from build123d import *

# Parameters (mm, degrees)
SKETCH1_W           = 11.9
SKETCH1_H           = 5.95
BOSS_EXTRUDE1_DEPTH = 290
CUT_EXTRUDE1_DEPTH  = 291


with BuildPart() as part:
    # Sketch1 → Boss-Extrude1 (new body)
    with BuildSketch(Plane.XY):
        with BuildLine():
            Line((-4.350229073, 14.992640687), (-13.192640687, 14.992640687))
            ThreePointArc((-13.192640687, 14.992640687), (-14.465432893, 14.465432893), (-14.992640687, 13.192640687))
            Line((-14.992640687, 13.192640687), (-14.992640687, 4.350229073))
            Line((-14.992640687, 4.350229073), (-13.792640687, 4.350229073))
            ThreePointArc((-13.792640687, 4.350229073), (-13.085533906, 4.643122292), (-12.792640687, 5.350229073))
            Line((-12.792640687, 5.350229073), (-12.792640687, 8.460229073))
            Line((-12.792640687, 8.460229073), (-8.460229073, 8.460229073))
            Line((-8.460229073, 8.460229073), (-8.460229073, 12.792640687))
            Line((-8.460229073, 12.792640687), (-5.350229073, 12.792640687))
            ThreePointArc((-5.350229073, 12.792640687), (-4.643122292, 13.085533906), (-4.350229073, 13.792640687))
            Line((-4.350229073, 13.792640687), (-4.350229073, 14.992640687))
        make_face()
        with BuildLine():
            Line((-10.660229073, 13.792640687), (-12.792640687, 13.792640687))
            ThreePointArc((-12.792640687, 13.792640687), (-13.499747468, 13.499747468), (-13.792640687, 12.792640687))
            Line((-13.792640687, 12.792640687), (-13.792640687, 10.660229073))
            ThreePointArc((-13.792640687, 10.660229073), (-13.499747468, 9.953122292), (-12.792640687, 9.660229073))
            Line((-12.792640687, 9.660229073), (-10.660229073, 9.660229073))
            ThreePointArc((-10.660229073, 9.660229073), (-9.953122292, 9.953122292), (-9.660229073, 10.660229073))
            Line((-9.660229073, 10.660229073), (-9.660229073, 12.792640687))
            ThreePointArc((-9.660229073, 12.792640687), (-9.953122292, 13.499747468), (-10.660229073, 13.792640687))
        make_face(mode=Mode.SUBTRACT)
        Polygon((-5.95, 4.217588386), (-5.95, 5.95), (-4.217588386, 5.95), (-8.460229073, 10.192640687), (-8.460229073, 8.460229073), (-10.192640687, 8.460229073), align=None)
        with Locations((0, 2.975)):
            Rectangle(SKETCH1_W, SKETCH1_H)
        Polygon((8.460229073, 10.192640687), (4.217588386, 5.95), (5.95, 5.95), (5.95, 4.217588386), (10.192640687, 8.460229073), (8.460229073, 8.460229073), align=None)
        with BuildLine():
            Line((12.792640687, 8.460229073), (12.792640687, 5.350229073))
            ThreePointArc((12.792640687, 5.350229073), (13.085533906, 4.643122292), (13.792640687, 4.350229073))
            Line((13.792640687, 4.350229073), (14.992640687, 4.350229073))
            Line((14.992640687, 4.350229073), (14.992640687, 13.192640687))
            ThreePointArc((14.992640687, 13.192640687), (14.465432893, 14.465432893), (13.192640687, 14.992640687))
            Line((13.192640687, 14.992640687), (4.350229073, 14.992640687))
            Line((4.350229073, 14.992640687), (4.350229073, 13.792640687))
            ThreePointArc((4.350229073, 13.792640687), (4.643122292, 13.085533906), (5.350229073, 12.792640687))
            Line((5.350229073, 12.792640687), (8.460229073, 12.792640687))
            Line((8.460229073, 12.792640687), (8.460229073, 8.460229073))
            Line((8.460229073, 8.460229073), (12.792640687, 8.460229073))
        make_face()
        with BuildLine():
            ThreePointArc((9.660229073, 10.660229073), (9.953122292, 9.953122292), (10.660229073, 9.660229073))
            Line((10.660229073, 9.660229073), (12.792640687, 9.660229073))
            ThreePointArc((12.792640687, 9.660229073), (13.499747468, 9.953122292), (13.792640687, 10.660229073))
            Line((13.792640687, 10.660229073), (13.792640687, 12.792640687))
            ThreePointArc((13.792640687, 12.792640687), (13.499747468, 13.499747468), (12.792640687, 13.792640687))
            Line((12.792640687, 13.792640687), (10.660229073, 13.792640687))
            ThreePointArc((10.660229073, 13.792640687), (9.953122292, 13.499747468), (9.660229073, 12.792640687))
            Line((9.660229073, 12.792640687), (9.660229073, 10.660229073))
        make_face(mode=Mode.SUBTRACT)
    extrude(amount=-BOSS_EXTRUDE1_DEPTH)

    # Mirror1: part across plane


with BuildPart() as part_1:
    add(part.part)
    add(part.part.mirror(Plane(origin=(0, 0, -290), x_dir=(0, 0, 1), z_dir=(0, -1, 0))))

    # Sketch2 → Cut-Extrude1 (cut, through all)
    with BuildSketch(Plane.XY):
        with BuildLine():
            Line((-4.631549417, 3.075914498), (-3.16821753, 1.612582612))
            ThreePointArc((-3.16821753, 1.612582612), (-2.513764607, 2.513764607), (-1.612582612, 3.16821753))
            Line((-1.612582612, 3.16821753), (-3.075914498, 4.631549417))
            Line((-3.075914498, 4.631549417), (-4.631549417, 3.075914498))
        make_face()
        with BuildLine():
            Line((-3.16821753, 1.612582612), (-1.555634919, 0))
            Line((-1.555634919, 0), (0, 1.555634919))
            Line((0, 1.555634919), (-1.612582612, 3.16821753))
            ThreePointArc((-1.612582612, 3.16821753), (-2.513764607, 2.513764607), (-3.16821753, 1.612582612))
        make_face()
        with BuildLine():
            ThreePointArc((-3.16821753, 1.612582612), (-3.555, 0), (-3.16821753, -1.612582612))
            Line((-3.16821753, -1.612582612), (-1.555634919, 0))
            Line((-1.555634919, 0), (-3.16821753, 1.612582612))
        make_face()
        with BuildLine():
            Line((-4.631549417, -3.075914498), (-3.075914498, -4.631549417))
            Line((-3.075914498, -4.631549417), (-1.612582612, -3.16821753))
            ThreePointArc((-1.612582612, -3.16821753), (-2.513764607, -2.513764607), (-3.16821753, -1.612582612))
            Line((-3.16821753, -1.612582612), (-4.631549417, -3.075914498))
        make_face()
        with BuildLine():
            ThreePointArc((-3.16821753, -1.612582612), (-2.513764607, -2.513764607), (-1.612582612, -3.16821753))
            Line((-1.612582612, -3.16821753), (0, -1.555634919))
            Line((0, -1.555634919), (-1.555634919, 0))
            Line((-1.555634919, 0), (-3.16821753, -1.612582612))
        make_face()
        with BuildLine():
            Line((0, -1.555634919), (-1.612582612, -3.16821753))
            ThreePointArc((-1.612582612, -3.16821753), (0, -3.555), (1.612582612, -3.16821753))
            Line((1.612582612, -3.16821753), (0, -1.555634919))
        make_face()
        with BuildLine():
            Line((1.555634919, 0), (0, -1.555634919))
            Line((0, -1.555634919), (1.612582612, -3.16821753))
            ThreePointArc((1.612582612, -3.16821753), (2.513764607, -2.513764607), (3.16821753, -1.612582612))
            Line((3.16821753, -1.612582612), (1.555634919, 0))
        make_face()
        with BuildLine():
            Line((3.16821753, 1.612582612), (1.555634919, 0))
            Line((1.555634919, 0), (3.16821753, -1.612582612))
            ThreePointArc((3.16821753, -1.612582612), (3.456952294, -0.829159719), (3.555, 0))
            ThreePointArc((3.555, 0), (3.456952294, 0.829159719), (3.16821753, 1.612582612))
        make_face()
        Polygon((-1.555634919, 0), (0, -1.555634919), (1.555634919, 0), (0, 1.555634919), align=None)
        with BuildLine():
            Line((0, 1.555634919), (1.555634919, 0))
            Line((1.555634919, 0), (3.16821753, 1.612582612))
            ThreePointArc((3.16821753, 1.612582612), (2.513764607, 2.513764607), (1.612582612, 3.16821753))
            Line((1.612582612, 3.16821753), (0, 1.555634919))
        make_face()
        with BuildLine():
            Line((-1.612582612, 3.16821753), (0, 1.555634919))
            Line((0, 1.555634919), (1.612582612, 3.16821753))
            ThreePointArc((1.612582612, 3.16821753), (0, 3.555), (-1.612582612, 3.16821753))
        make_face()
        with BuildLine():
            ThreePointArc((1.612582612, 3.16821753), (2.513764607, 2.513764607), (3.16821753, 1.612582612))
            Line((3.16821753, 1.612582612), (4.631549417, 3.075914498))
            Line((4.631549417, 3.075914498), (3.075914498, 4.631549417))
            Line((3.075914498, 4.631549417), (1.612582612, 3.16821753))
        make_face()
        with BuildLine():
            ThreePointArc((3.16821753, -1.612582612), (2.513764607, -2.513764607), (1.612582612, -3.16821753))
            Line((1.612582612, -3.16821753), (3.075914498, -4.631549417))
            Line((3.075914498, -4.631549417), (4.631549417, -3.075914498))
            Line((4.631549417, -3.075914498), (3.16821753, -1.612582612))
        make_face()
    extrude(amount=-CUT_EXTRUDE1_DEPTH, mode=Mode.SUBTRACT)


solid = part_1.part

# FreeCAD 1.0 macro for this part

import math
import FreeCAD as App
import Part
import Sketcher
from FreeCAD import Vector
Q = App.Units.Quantity

doc = App.newDocument("Part")
body = doc.addObject("PartDesign::Body", "Body")

sketch1 = doc.addObject("Sketcher::SketchObject", "Sketch")
body.addObject(sketch1)
sketch1.AttachmentSupport = (doc.XY_Plane, [""])
sketch1.MapMode = "FlatFace"
sketch1.addGeometry(Part.LineSegment(Vector(-4.350229, 14.992641, 0), Vector(-13.192641, 14.992641, 0)), False)
sketch1.addGeometry(Part.ArcOfCircle(Part.Circle(Vector(-13.192641, 13.192641, 0), Vector(0, 0, 1), 1.8), math.radians(90), math.radians(180)), False)
sketch1.addGeometry(Part.LineSegment(Vector(-14.992641, 13.192641, 0), Vector(-14.992641, 4.350229, 0)), False)
sketch1.addGeometry(Part.LineSegment(Vector(-14.992641, 4.350229, 0), Vector(-13.792641, 4.350229, 0)), False)
sketch1.addGeometry(Part.ArcOfCircle(Part.Circle(Vector(-13.792641, 5.350229, 0), Vector(0, 0, 1), 1), math.radians(-90), math.radians(0)), False)
sketch1.addGeometry(Part.LineSegment(Vector(-12.792641, 5.350229, 0), Vector(-12.792641, 8.460229, 0)), False)
sketch1.addGeometry(Part.LineSegment(Vector(-12.792641, 8.460229, 0), Vector(-10.192641, 8.460229, 0)), False)
sketch1.addGeometry(Part.LineSegment(Vector(-10.192641, 8.460229, 0), Vector(-5.95, 4.217588, 0)), False)
sketch1.addGeometry(Part.LineSegment(Vector(-5.95, 4.217588, 0), Vector(-5.95, 0, 0)), False)
sketch1.addGeometry(Part.LineSegment(Vector(-5.95, 0, 0), Vector(5.95, 0, 0)), False)
sketch1.addGeometry(Part.LineSegment(Vector(5.95, 0, 0), Vector(5.95, 4.217588, 0)), False)
sketch1.addGeometry(Part.LineSegment(Vector(5.95, 4.217588, 0), Vector(10.192641, 8.460229, 0)), False)
sketch1.addGeometry(Part.LineSegment(Vector(10.192641, 8.460229, 0), Vector(12.792641, 8.460229, 0)), False)
sketch1.addGeometry(Part.LineSegment(Vector(12.792641, 8.460229, 0), Vector(12.792641, 5.350229, 0)), False)
sketch1.addGeometry(Part.ArcOfCircle(Part.Circle(Vector(13.792641, 5.350229, 0), Vector(0, 0, 1), 1), math.radians(-180), math.radians(-90)), False)
sketch1.addGeometry(Part.LineSegment(Vector(13.792641, 4.350229, 0), Vector(14.992641, 4.350229, 0)), False)
sketch1.addGeometry(Part.LineSegment(Vector(14.992641, 4.350229, 0), Vector(14.992641, 13.192641, 0)), False)
sketch1.addGeometry(Part.ArcOfCircle(Part.Circle(Vector(13.192641, 13.192641, 0), Vector(0, 0, 1), 1.8), math.radians(0), math.radians(90)), False)
sketch1.addGeometry(Part.LineSegment(Vector(13.192641, 14.992641, 0), Vector(4.350229, 14.992641, 0)), False)
sketch1.addGeometry(Part.LineSegment(Vector(4.350229, 14.992641, 0), Vector(4.350229, 13.792641, 0)), False)
sketch1.addGeometry(Part.ArcOfCircle(Part.Circle(Vector(5.350229, 13.792641, 0), Vector(0, 0, 1), 1), math.radians(-180), math.radians(-90)), False)
sketch1.addGeometry(Part.LineSegment(Vector(5.350229, 12.792641, 0), Vector(8.460229, 12.792641, 0)), False)
sketch1.addGeometry(Part.LineSegment(Vector(8.460229, 12.792641, 0), Vector(8.460229, 10.192641, 0)), False)
sketch1.addGeometry(Part.LineSegment(Vector(8.460229, 10.192641, 0), Vector(4.217588, 5.95, 0)), False)
sketch1.addGeometry(Part.LineSegment(Vector(4.217588, 5.95, 0), Vector(-4.217588, 5.95, 0)), False)
sketch1.addGeometry(Part.LineSegment(Vector(-4.217588, 5.95, 0), Vector(-8.460229, 10.192641, 0)), False)
sketch1.addGeometry(Part.LineSegment(Vector(-8.460229, 10.192641, 0), Vector(-8.460229, 12.792641, 0)), False)
sketch1.addGeometry(Part.LineSegment(Vector(-8.460229, 12.792641, 0), Vector(-5.350229, 12.792641, 0)), False)
sketch1.addGeometry(Part.ArcOfCircle(Part.Circle(Vector(-5.350229, 13.792641, 0), Vector(0, 0, 1), 1), math.radians(-90), math.radians(0)), False)
sketch1.addGeometry(Part.LineSegment(Vector(-4.350229, 13.792641, 0), Vector(-4.350229, 14.992641, 0)), False)
sketch1.addGeometry(Part.LineSegment(Vector(-12.792641, 13.792641, 0), Vector(-10.660229, 13.792641, 0)), False)
sketch1.addGeometry(Part.ArcOfCircle(Part.Circle(Vector(-10.660229, 12.792641, 0), Vector(0, 0, 1), 1), math.radians(0), math.radians(90)), False)
sketch1.addGeometry(Part.LineSegment(Vector(-9.660229, 12.792641, 0), Vector(-9.660229, 10.660229, 0)), False)
sketch1.addGeometry(Part.ArcOfCircle(Part.Circle(Vector(-10.660229, 10.660229, 0), Vector(0, 0, 1), 1), math.radians(-90), math.radians(0)), False)
sketch1.addGeometry(Part.LineSegment(Vector(-10.660229, 9.660229, 0), Vector(-12.792641, 9.660229, 0)), False)
sketch1.addGeometry(Part.ArcOfCircle(Part.Circle(Vector(-12.792641, 10.660229, 0), Vector(0, 0, 1), 1), math.radians(-180), math.radians(-90)), False)
sketch1.addGeometry(Part.LineSegment(Vector(-13.792641, 10.660229, 0), Vector(-13.792641, 12.792641, 0)), False)
sketch1.addGeometry(Part.ArcOfCircle(Part.Circle(Vector(-12.792641, 12.792641, 0), Vector(0, 0, 1), 1), math.radians(90), math.radians(180)), False)
sketch1.addGeometry(Part.ArcOfCircle(Part.Circle(Vector(10.660229, 10.660229, 0), Vector(0, 0, 1), 1), math.radians(-180), math.radians(-90)), False)
sketch1.addGeometry(Part.LineSegment(Vector(9.660229, 10.660229, 0), Vector(9.660229, 12.792641, 0)), False)
sketch1.addGeometry(Part.ArcOfCircle(Part.Circle(Vector(10.660229, 12.792641, 0), Vector(0, 0, 1), 1), math.radians(90), math.radians(180)), False)
sketch1.addGeometry(Part.LineSegment(Vector(10.660229, 13.792641, 0), Vector(12.792641, 13.792641, 0)), False)
sketch1.addGeometry(Part.ArcOfCircle(Part.Circle(Vector(12.792641, 12.792641, 0), Vector(0, 0, 1), 1), math.radians(0), math.radians(90)), False)
sketch1.addGeometry(Part.LineSegment(Vector(13.792641, 12.792641, 0), Vector(13.792641, 10.660229, 0)), False)
sketch1.addGeometry(Part.ArcOfCircle(Part.Circle(Vector(12.792641, 10.660229, 0), Vector(0, 0, 1), 1), math.radians(-90), math.radians(0)), False)
sketch1.addGeometry(Part.LineSegment(Vector(12.792641, 9.660229, 0), Vector(10.660229, 9.660229, 0)), False)
sketch1.addConstraint(Sketcher.Constraint("Tangent", 0, 2, 1, 1))
sketch1.addConstraint(Sketcher.Constraint("Tangent", 1, 2, 2, 1))
sketch1.addConstraint(Sketcher.Constraint("Coincident", 2, 2, 3, 1))
sketch1.addConstraint(Sketcher.Constraint("Tangent", 3, 2, 4, 1))
sketch1.addConstraint(Sketcher.Constraint("Tangent", 4, 2, 5, 1))
sketch1.addConstraint(Sketcher.Constraint("Coincident", 5, 2, 6, 1))
sketch1.addConstraint(Sketcher.Constraint("Coincident", 6, 2, 7, 1))
sketch1.addConstraint(Sketcher.Constraint("Coincident", 7, 2, 8, 1))
sketch1.addConstraint(Sketcher.Constraint("Coincident", 8, 2, 9, 1))
sketch1.addConstraint(Sketcher.Constraint("Coincident", 9, 2, 10, 1))
sketch1.addConstraint(Sketcher.Constraint("Coincident", 10, 2, 11, 1))
sketch1.addConstraint(Sketcher.Constraint("Coincident", 11, 2, 12, 1))
sketch1.addConstraint(Sketcher.Constraint("Coincident", 12, 2, 13, 1))
sketch1.addConstraint(Sketcher.Constraint("Tangent", 13, 2, 14, 1))
sketch1.addConstraint(Sketcher.Constraint("Tangent", 14, 2, 15, 1))
sketch1.addConstraint(Sketcher.Constraint("Coincident", 15, 2, 16, 1))
sketch1.addConstraint(Sketcher.Constraint("Tangent", 16, 2, 17, 1))
sketch1.addConstraint(Sketcher.Constraint("Tangent", 17, 2, 18, 1))
sketch1.addConstraint(Sketcher.Constraint("Coincident", 18, 2, 19, 1))
sketch1.addConstraint(Sketcher.Constraint("Tangent", 19, 2, 20, 1))
sketch1.addConstraint(Sketcher.Constraint("Tangent", 20, 2, 21, 1))
sketch1.addConstraint(Sketcher.Constraint("Coincident", 21, 2, 22, 1))
sketch1.addConstraint(Sketcher.Constraint("Coincident", 22, 2, 23, 1))
sketch1.addConstraint(Sketcher.Constraint("Coincident", 23, 2, 24, 1))
sketch1.addConstraint(Sketcher.Constraint("Coincident", 24, 2, 25, 1))
sketch1.addConstraint(Sketcher.Constraint("Coincident", 25, 2, 26, 1))
sketch1.addConstraint(Sketcher.Constraint("Coincident", 26, 2, 27, 1))
sketch1.addConstraint(Sketcher.Constraint("Tangent", 27, 2, 28, 1))
sketch1.addConstraint(Sketcher.Constraint("Tangent", 28, 2, 29, 1))
sketch1.addConstraint(Sketcher.Constraint("Coincident", 29, 2, 0, 1))
sketch1.addConstraint(Sketcher.Constraint("Tangent", 30, 2, 31, 2))
sketch1.addConstraint(Sketcher.Constraint("Tangent", 31, 1, 32, 1))
sketch1.addConstraint(Sketcher.Constraint("Tangent", 32, 2, 33, 2))
sketch1.addConstraint(Sketcher.Constraint("Tangent", 33, 1, 34, 1))
sketch1.addConstraint(Sketcher.Constraint("Tangent", 34, 2, 35, 2))
sketch1.addConstraint(Sketcher.Constraint("Tangent", 35, 1, 36, 1))
sketch1.addConstraint(Sketcher.Constraint("Tangent", 36, 2, 37, 2))
sketch1.addConstraint(Sketcher.Constraint("Tangent", 37, 1, 30, 1))
sketch1.addConstraint(Sketcher.Constraint("Tangent", 38, 1, 39, 1))
sketch1.addConstraint(Sketcher.Constraint("Tangent", 39, 2, 40, 2))
sketch1.addConstraint(Sketcher.Constraint("Tangent", 40, 1, 41, 1))
sketch1.addConstraint(Sketcher.Constraint("Tangent", 41, 2, 42, 2))
sketch1.addConstraint(Sketcher.Constraint("Tangent", 42, 1, 43, 1))
sketch1.addConstraint(Sketcher.Constraint("Tangent", 43, 2, 44, 2))
sketch1.addConstraint(Sketcher.Constraint("Tangent", 44, 1, 45, 1))
sketch1.addConstraint(Sketcher.Constraint("Tangent", 45, 2, 38, 2))
sketch1.addConstraint(Sketcher.Constraint("Horizontal", 0))
sketch1.addConstraint(Sketcher.Constraint("Vertical", 2))
sketch1.addConstraint(Sketcher.Constraint("Horizontal", 3))
sketch1.addConstraint(Sketcher.Constraint("Vertical", 5))
sketch1.addConstraint(Sketcher.Constraint("Horizontal", 6))
sketch1.addConstraint(Sketcher.Constraint("Vertical", 8))
sketch1.addConstraint(Sketcher.Constraint("Horizontal", 9))
sketch1.addConstraint(Sketcher.Constraint("Vertical", 10))
sketch1.addConstraint(Sketcher.Constraint("Horizontal", 12))
sketch1.addConstraint(Sketcher.Constraint("Vertical", 13))
sketch1.addConstraint(Sketcher.Constraint("Horizontal", 15))
sketch1.addConstraint(Sketcher.Constraint("Vertical", 16))
sketch1.addConstraint(Sketcher.Constraint("Horizontal", 18))
sketch1.addConstraint(Sketcher.Constraint("Vertical", 19))
sketch1.addConstraint(Sketcher.Constraint("Horizontal", 21))
sketch1.addConstraint(Sketcher.Constraint("Vertical", 22))
sketch1.addConstraint(Sketcher.Constraint("Horizontal", 24))
sketch1.addConstraint(Sketcher.Constraint("Vertical", 26))
sketch1.addConstraint(Sketcher.Constraint("Horizontal", 27))
sketch1.addConstraint(Sketcher.Constraint("Vertical", 29))
sketch1.addConstraint(Sketcher.Constraint("Horizontal", 30))
sketch1.addConstraint(Sketcher.Constraint("Vertical", 32))
sketch1.addConstraint(Sketcher.Constraint("Horizontal", 34))
sketch1.addConstraint(Sketcher.Constraint("Vertical", 36))
sketch1.addConstraint(Sketcher.Constraint("Vertical", 39))
sketch1.addConstraint(Sketcher.Constraint("Horizontal", 41))
sketch1.addConstraint(Sketcher.Constraint("Vertical", 43))
sketch1.addConstraint(Sketcher.Constraint("Horizontal", 45))
sketch1.addConstraint(Sketcher.Constraint("Equal", 4, 14))
sketch1.addConstraint(Sketcher.Constraint("Equal", 1, 17))
sketch1.addConstraint(Sketcher.Constraint("Equal", 14, 20))
sketch1.addConstraint(Sketcher.Constraint("Equal", 20, 28))
sketch1.addConstraint(Sketcher.Constraint("Equal", 28, 31))
sketch1.addConstraint(Sketcher.Constraint("Equal", 31, 33))
sketch1.addConstraint(Sketcher.Constraint("Equal", 33, 35))
sketch1.addConstraint(Sketcher.Constraint("Equal", 35, 37))
sketch1.addConstraint(Sketcher.Constraint("Equal", 37, 38))
sketch1.addConstraint(Sketcher.Constraint("Equal", 38, 40))
sketch1.addConstraint(Sketcher.Constraint("Equal", 40, 42))
sketch1.addConstraint(Sketcher.Constraint("Equal", 42, 44))
sketch1.addConstraint(Sketcher.Constraint("Symmetric", 8, 2, 9, 2, -1, 1))
sketch1.addConstraint(Sketcher.Constraint("Symmetric", 4, 3, 14, 3, -2))
sketch1.addConstraint(Sketcher.Constraint("Symmetric", 1, 3, 17, 3, -2))
sketch1.addConstraint(Sketcher.Constraint("Symmetric", 20, 3, 28, 3, -2))
sketch1.addConstraint(Sketcher.Constraint("Symmetric", 33, 3, 38, 3, -2))
sketch1.addConstraint(Sketcher.Constraint("Symmetric", 37, 3, 42, 3, -2))
sketch1.addConstraint(Sketcher.Constraint("Symmetric", 6, 2, 11, 2, -2))
sketch1.addConstraint(Sketcher.Constraint("Symmetric", 22, 2, 25, 2, -2))
sketch1.addConstraint(Sketcher.Constraint("Perpendicular", 7, 11))
sketch1.addConstraint(Sketcher.Constraint("Parallel", 11, 23))
sketch1.addConstraint(Sketcher.Constraint("Perpendicular", 23, 25))
sketch1.addConstraint(Sketcher.Constraint("Horizontal", 7, 2, 10, 2))
sketch1.addConstraint(Sketcher.Constraint("Horizontal", 42, 3, 20, 2))
sketch1.addConstraint(Sketcher.Constraint("Vertical", 37, 3, 4, 2))
sketch1.addConstraint(Sketcher.Constraint("Equal", 18, 2))
sketch1.addConstraint(Sketcher.Constraint("Equal", 27, 5))
sketch1.addConstraint(Sketcher.Constraint("Equal", 15, 19))
sketch1.addConstraint(Sketcher.Constraint("Equal", 12, 22))
sketch1.addConstraint(Sketcher.Constraint("Equal", 45, 32))
sketch1.addConstraint(Sketcher.Constraint("Equal", 11, 23))
sketch1.addConstraint(Sketcher.Constraint("Radius", 4, Q("1 mm")))
sketch1.addConstraint(Sketcher.Constraint("Radius", 1, Q("1.8 mm")))
sketch1.addConstraint(Sketcher.Constraint("Distance", 7, Q("6 mm")))
sketch1.addConstraint(Sketcher.Constraint("DistanceX", 3, 1, 3, 2, Q("1.2 mm")))
sketch1.addConstraint(Sketcher.Constraint("DistanceX", 6, 1, 6, 2, Q("2.6 mm")))
sketch1.addConstraint(Sketcher.Constraint("DistanceX", 9, 1, 9, 2, Q("11.9 mm")))
sketch1.addConstraint(Sketcher.Constraint("DistanceX", 21, 1, 21, 2, Q("3.11 mm")))
sketch1.addConstraint(Sketcher.Constraint("DistanceY", 5, 2, 35, 3, Q("2.2 mm")))
sketch1.addConstraint(Sketcher.Constraint("DistanceY", -1, 1, 23, 2, Q("5.95 mm")))
sketch1.addConstraint(Sketcher.Constraint("DistanceX", 0, 2, 0, 1, Q("8.842412 mm")))
pad1 = doc.addObject("PartDesign::Pad", "Pad")
body.addObject(pad1)
pad1.Profile = sketch1
pad1.Length = 290
pad1.Reversed = True
body2 = doc.addObject("PartDesign::Body", "Body001")
doc.recompute()

body2.BaseFeature = body
doc.recompute()

mirroring = doc.addObject("Part::Mirroring", "Mirroring")
mirroring.Source = body
mirroring.Base = Vector(0, 0, -290)
mirroring.Normal = Vector(0, -1, 0)
body3 = doc.addObject("PartDesign::Body", "Body002")
body3.BaseFeature = mirroring
boolean = doc.addObject("PartDesign::Boolean", "Boolean")
body2.addObject(boolean)
boolean.Type = "Fuse"
boolean.addObjects([body3])
doc.recompute()

sketch2 = doc.addObject("Sketcher::SketchObject", "Sketch001")
body2.addObject(sketch2)
sketch2.AttachmentSupport = (doc.getObject("XY_Plane001"), [""])
sketch2.MapMode = "FlatFace"
sketch2.addGeometry(Part.LineSegment(Vector(-4.631549, 3.075914, 0), Vector(-3.168218, 1.612583, 0)), False)
sketch2.addGeometry(Part.ArcOfCircle(Part.Circle(Vector(0, 0, 0), Vector(0, 0, 1), 3.555), math.radians(153.024482), math.radians(206.975518)), False)
sketch2.addGeometry(Part.LineSegment(Vector(-3.168218, -1.612583, 0), Vector(-4.631549, -3.075914, 0)), False)
sketch2.addGeometry(Part.LineSegment(Vector(-4.631549, -3.075914, 0), Vector(-3.075914, -4.631549, 0)), False)
sketch2.addGeometry(Part.LineSegment(Vector(-3.075914, -4.631549, 0), Vector(-1.612583, -3.168218, 0)), False)
sketch2.addGeometry(Part.ArcOfCircle(Part.Circle(Vector(0, 0, 0), Vector(0, 0, 1), 3.555), math.radians(-116.975518), math.radians(-63.024482)), False)
sketch2.addGeometry(Part.LineSegment(Vector(1.612583, -3.168218, 0), Vector(3.075914, -4.631549, 0)), False)
sketch2.addGeometry(Part.LineSegment(Vector(3.075914, -4.631549, 0), Vector(4.631549, -3.075914, 0)), False)
sketch2.addGeometry(Part.LineSegment(Vector(4.631549, -3.075914, 0), Vector(3.168218, -1.612583, 0)), False)
sketch2.addGeometry(Part.ArcOfCircle(Part.Circle(Vector(0, 0, 0), Vector(0, 0, 1), 3.555), math.radians(-26.975518), math.radians(0)), False)
sketch2.addGeometry(Part.ArcOfCircle(Part.Circle(Vector(0, 0, 0), Vector(0, 0, 1), 3.555), math.radians(0), math.radians(26.975518)), False)
sketch2.addGeometry(Part.LineSegment(Vector(3.168218, 1.612583, 0), Vector(4.631549, 3.075914, 0)), False)
sketch2.addGeometry(Part.LineSegment(Vector(4.631549, 3.075914, 0), Vector(3.075914, 4.631549, 0)), False)
sketch2.addGeometry(Part.LineSegment(Vector(3.075914, 4.631549, 0), Vector(1.612583, 3.168218, 0)), False)
sketch2.addGeometry(Part.ArcOfCircle(Part.Circle(Vector(0, 0, 0), Vector(0, 0, 1), 3.555), math.radians(63.024482), math.radians(116.975518)), False)
sketch2.addGeometry(Part.LineSegment(Vector(-1.612583, 3.168218, 0), Vector(-3.075914, 4.631549, 0)), False)
sketch2.addGeometry(Part.LineSegment(Vector(-3.075914, 4.631549, 0), Vector(-4.631549, 3.075914, 0)), False)
sketch2.addConstraint(Sketcher.Constraint("Coincident", 0, 2, 1, 1))
sketch2.addConstraint(Sketcher.Constraint("Coincident", 1, 2, 2, 1))
sketch2.addConstraint(Sketcher.Constraint("Coincident", 2, 2, 3, 1))
sketch2.addConstraint(Sketcher.Constraint("Coincident", 3, 2, 4, 1))
sketch2.addConstraint(Sketcher.Constraint("Coincident", 4, 2, 5, 1))
sketch2.addConstraint(Sketcher.Constraint("Coincident", 5, 2, 6, 1))
sketch2.addConstraint(Sketcher.Constraint("Coincident", 6, 2, 7, 1))
sketch2.addConstraint(Sketcher.Constraint("Coincident", 7, 2, 8, 1))
sketch2.addConstraint(Sketcher.Constraint("Coincident", 8, 2, 9, 1))
sketch2.addConstraint(Sketcher.Constraint("Tangent", 9, 2, 10, 1))
sketch2.addConstraint(Sketcher.Constraint("Coincident", 10, 2, 11, 1))
sketch2.addConstraint(Sketcher.Constraint("Coincident", 11, 2, 12, 1))
sketch2.addConstraint(Sketcher.Constraint("Coincident", 12, 2, 13, 1))
sketch2.addConstraint(Sketcher.Constraint("Coincident", 13, 2, 14, 1))
sketch2.addConstraint(Sketcher.Constraint("Coincident", 14, 2, 15, 1))
sketch2.addConstraint(Sketcher.Constraint("Coincident", 15, 2, 16, 1))
sketch2.addConstraint(Sketcher.Constraint("Coincident", 16, 2, 0, 1))
sketch2.addConstraint(Sketcher.Constraint("Coincident", 1, 3, -1, 1))
sketch2.addConstraint(Sketcher.Constraint("Coincident", 5, 3, -1, 1))
sketch2.addConstraint(Sketcher.Constraint("Coincident", 9, 3, -1, 1))
sketch2.addConstraint(Sketcher.Constraint("Coincident", 14, 3, -1, 1))
sketch2.addConstraint(Sketcher.Constraint("Equal", 1, 5))
sketch2.addConstraint(Sketcher.Constraint("Equal", 5, 9))
sketch2.addConstraint(Sketcher.Constraint("Equal", 9, 10))
sketch2.addConstraint(Sketcher.Constraint("Equal", 10, 14))
sketch2.addConstraint(Sketcher.Constraint("Symmetric", 2, 2, 11, 2, -1, 1))
sketch2.addConstraint(Sketcher.Constraint("Symmetric", 3, 2, 12, 2, -1, 1))
sketch2.addConstraint(Sketcher.Constraint("Symmetric", 6, 2, 15, 2, -1, 1))
sketch2.addConstraint(Sketcher.Constraint("Symmetric", 7, 2, 16, 2, -1, 1))
sketch2.addConstraint(Sketcher.Constraint("Symmetric", 3, 2, 6, 2, -2))
sketch2.addConstraint(Sketcher.Constraint("Symmetric", 2, 2, 7, 2, -2))
sketch2.addConstraint(Sketcher.Constraint("PointOnObject", 9, 2, -1))
sketch2.addConstraint(Sketcher.Constraint("Perpendicular", 0, 2))
sketch2.addConstraint(Sketcher.Constraint("Perpendicular", 2, 3))
sketch2.addConstraint(Sketcher.Constraint("Perpendicular", 3, 4))
sketch2.addConstraint(Sketcher.Constraint("Perpendicular", 4, 6))
sketch2.addConstraint(Sketcher.Constraint("Perpendicular", 6, 7))
sketch2.addConstraint(Sketcher.Constraint("Perpendicular", 7, 8))
sketch2.addConstraint(Sketcher.Constraint("Perpendicular", 8, 11))
sketch2.addConstraint(Sketcher.Constraint("Perpendicular", 12, 13))
sketch2.addConstraint(Sketcher.Constraint("Perpendicular", 13, 15))
sketch2.addConstraint(Sketcher.Constraint("Equal", 2, 4))
sketch2.addConstraint(Sketcher.Constraint("Radius", 1, Q("3.555 mm")))
sketch2.addConstraint(Sketcher.Constraint("Distance", 3, Q("2.2 mm")))
sketch2.addConstraint(Sketcher.Constraint("DistanceX", 2, 2, -1, 1, Q("4.631549 mm")))
pocket1 = doc.addObject("PartDesign::Pocket", "Pocket")
body2.addObject(pocket1)
pocket1.Profile = sketch2
pocket1.Type = "ThroughAll"
mirroring.Visibility = False

doc.recompute()
